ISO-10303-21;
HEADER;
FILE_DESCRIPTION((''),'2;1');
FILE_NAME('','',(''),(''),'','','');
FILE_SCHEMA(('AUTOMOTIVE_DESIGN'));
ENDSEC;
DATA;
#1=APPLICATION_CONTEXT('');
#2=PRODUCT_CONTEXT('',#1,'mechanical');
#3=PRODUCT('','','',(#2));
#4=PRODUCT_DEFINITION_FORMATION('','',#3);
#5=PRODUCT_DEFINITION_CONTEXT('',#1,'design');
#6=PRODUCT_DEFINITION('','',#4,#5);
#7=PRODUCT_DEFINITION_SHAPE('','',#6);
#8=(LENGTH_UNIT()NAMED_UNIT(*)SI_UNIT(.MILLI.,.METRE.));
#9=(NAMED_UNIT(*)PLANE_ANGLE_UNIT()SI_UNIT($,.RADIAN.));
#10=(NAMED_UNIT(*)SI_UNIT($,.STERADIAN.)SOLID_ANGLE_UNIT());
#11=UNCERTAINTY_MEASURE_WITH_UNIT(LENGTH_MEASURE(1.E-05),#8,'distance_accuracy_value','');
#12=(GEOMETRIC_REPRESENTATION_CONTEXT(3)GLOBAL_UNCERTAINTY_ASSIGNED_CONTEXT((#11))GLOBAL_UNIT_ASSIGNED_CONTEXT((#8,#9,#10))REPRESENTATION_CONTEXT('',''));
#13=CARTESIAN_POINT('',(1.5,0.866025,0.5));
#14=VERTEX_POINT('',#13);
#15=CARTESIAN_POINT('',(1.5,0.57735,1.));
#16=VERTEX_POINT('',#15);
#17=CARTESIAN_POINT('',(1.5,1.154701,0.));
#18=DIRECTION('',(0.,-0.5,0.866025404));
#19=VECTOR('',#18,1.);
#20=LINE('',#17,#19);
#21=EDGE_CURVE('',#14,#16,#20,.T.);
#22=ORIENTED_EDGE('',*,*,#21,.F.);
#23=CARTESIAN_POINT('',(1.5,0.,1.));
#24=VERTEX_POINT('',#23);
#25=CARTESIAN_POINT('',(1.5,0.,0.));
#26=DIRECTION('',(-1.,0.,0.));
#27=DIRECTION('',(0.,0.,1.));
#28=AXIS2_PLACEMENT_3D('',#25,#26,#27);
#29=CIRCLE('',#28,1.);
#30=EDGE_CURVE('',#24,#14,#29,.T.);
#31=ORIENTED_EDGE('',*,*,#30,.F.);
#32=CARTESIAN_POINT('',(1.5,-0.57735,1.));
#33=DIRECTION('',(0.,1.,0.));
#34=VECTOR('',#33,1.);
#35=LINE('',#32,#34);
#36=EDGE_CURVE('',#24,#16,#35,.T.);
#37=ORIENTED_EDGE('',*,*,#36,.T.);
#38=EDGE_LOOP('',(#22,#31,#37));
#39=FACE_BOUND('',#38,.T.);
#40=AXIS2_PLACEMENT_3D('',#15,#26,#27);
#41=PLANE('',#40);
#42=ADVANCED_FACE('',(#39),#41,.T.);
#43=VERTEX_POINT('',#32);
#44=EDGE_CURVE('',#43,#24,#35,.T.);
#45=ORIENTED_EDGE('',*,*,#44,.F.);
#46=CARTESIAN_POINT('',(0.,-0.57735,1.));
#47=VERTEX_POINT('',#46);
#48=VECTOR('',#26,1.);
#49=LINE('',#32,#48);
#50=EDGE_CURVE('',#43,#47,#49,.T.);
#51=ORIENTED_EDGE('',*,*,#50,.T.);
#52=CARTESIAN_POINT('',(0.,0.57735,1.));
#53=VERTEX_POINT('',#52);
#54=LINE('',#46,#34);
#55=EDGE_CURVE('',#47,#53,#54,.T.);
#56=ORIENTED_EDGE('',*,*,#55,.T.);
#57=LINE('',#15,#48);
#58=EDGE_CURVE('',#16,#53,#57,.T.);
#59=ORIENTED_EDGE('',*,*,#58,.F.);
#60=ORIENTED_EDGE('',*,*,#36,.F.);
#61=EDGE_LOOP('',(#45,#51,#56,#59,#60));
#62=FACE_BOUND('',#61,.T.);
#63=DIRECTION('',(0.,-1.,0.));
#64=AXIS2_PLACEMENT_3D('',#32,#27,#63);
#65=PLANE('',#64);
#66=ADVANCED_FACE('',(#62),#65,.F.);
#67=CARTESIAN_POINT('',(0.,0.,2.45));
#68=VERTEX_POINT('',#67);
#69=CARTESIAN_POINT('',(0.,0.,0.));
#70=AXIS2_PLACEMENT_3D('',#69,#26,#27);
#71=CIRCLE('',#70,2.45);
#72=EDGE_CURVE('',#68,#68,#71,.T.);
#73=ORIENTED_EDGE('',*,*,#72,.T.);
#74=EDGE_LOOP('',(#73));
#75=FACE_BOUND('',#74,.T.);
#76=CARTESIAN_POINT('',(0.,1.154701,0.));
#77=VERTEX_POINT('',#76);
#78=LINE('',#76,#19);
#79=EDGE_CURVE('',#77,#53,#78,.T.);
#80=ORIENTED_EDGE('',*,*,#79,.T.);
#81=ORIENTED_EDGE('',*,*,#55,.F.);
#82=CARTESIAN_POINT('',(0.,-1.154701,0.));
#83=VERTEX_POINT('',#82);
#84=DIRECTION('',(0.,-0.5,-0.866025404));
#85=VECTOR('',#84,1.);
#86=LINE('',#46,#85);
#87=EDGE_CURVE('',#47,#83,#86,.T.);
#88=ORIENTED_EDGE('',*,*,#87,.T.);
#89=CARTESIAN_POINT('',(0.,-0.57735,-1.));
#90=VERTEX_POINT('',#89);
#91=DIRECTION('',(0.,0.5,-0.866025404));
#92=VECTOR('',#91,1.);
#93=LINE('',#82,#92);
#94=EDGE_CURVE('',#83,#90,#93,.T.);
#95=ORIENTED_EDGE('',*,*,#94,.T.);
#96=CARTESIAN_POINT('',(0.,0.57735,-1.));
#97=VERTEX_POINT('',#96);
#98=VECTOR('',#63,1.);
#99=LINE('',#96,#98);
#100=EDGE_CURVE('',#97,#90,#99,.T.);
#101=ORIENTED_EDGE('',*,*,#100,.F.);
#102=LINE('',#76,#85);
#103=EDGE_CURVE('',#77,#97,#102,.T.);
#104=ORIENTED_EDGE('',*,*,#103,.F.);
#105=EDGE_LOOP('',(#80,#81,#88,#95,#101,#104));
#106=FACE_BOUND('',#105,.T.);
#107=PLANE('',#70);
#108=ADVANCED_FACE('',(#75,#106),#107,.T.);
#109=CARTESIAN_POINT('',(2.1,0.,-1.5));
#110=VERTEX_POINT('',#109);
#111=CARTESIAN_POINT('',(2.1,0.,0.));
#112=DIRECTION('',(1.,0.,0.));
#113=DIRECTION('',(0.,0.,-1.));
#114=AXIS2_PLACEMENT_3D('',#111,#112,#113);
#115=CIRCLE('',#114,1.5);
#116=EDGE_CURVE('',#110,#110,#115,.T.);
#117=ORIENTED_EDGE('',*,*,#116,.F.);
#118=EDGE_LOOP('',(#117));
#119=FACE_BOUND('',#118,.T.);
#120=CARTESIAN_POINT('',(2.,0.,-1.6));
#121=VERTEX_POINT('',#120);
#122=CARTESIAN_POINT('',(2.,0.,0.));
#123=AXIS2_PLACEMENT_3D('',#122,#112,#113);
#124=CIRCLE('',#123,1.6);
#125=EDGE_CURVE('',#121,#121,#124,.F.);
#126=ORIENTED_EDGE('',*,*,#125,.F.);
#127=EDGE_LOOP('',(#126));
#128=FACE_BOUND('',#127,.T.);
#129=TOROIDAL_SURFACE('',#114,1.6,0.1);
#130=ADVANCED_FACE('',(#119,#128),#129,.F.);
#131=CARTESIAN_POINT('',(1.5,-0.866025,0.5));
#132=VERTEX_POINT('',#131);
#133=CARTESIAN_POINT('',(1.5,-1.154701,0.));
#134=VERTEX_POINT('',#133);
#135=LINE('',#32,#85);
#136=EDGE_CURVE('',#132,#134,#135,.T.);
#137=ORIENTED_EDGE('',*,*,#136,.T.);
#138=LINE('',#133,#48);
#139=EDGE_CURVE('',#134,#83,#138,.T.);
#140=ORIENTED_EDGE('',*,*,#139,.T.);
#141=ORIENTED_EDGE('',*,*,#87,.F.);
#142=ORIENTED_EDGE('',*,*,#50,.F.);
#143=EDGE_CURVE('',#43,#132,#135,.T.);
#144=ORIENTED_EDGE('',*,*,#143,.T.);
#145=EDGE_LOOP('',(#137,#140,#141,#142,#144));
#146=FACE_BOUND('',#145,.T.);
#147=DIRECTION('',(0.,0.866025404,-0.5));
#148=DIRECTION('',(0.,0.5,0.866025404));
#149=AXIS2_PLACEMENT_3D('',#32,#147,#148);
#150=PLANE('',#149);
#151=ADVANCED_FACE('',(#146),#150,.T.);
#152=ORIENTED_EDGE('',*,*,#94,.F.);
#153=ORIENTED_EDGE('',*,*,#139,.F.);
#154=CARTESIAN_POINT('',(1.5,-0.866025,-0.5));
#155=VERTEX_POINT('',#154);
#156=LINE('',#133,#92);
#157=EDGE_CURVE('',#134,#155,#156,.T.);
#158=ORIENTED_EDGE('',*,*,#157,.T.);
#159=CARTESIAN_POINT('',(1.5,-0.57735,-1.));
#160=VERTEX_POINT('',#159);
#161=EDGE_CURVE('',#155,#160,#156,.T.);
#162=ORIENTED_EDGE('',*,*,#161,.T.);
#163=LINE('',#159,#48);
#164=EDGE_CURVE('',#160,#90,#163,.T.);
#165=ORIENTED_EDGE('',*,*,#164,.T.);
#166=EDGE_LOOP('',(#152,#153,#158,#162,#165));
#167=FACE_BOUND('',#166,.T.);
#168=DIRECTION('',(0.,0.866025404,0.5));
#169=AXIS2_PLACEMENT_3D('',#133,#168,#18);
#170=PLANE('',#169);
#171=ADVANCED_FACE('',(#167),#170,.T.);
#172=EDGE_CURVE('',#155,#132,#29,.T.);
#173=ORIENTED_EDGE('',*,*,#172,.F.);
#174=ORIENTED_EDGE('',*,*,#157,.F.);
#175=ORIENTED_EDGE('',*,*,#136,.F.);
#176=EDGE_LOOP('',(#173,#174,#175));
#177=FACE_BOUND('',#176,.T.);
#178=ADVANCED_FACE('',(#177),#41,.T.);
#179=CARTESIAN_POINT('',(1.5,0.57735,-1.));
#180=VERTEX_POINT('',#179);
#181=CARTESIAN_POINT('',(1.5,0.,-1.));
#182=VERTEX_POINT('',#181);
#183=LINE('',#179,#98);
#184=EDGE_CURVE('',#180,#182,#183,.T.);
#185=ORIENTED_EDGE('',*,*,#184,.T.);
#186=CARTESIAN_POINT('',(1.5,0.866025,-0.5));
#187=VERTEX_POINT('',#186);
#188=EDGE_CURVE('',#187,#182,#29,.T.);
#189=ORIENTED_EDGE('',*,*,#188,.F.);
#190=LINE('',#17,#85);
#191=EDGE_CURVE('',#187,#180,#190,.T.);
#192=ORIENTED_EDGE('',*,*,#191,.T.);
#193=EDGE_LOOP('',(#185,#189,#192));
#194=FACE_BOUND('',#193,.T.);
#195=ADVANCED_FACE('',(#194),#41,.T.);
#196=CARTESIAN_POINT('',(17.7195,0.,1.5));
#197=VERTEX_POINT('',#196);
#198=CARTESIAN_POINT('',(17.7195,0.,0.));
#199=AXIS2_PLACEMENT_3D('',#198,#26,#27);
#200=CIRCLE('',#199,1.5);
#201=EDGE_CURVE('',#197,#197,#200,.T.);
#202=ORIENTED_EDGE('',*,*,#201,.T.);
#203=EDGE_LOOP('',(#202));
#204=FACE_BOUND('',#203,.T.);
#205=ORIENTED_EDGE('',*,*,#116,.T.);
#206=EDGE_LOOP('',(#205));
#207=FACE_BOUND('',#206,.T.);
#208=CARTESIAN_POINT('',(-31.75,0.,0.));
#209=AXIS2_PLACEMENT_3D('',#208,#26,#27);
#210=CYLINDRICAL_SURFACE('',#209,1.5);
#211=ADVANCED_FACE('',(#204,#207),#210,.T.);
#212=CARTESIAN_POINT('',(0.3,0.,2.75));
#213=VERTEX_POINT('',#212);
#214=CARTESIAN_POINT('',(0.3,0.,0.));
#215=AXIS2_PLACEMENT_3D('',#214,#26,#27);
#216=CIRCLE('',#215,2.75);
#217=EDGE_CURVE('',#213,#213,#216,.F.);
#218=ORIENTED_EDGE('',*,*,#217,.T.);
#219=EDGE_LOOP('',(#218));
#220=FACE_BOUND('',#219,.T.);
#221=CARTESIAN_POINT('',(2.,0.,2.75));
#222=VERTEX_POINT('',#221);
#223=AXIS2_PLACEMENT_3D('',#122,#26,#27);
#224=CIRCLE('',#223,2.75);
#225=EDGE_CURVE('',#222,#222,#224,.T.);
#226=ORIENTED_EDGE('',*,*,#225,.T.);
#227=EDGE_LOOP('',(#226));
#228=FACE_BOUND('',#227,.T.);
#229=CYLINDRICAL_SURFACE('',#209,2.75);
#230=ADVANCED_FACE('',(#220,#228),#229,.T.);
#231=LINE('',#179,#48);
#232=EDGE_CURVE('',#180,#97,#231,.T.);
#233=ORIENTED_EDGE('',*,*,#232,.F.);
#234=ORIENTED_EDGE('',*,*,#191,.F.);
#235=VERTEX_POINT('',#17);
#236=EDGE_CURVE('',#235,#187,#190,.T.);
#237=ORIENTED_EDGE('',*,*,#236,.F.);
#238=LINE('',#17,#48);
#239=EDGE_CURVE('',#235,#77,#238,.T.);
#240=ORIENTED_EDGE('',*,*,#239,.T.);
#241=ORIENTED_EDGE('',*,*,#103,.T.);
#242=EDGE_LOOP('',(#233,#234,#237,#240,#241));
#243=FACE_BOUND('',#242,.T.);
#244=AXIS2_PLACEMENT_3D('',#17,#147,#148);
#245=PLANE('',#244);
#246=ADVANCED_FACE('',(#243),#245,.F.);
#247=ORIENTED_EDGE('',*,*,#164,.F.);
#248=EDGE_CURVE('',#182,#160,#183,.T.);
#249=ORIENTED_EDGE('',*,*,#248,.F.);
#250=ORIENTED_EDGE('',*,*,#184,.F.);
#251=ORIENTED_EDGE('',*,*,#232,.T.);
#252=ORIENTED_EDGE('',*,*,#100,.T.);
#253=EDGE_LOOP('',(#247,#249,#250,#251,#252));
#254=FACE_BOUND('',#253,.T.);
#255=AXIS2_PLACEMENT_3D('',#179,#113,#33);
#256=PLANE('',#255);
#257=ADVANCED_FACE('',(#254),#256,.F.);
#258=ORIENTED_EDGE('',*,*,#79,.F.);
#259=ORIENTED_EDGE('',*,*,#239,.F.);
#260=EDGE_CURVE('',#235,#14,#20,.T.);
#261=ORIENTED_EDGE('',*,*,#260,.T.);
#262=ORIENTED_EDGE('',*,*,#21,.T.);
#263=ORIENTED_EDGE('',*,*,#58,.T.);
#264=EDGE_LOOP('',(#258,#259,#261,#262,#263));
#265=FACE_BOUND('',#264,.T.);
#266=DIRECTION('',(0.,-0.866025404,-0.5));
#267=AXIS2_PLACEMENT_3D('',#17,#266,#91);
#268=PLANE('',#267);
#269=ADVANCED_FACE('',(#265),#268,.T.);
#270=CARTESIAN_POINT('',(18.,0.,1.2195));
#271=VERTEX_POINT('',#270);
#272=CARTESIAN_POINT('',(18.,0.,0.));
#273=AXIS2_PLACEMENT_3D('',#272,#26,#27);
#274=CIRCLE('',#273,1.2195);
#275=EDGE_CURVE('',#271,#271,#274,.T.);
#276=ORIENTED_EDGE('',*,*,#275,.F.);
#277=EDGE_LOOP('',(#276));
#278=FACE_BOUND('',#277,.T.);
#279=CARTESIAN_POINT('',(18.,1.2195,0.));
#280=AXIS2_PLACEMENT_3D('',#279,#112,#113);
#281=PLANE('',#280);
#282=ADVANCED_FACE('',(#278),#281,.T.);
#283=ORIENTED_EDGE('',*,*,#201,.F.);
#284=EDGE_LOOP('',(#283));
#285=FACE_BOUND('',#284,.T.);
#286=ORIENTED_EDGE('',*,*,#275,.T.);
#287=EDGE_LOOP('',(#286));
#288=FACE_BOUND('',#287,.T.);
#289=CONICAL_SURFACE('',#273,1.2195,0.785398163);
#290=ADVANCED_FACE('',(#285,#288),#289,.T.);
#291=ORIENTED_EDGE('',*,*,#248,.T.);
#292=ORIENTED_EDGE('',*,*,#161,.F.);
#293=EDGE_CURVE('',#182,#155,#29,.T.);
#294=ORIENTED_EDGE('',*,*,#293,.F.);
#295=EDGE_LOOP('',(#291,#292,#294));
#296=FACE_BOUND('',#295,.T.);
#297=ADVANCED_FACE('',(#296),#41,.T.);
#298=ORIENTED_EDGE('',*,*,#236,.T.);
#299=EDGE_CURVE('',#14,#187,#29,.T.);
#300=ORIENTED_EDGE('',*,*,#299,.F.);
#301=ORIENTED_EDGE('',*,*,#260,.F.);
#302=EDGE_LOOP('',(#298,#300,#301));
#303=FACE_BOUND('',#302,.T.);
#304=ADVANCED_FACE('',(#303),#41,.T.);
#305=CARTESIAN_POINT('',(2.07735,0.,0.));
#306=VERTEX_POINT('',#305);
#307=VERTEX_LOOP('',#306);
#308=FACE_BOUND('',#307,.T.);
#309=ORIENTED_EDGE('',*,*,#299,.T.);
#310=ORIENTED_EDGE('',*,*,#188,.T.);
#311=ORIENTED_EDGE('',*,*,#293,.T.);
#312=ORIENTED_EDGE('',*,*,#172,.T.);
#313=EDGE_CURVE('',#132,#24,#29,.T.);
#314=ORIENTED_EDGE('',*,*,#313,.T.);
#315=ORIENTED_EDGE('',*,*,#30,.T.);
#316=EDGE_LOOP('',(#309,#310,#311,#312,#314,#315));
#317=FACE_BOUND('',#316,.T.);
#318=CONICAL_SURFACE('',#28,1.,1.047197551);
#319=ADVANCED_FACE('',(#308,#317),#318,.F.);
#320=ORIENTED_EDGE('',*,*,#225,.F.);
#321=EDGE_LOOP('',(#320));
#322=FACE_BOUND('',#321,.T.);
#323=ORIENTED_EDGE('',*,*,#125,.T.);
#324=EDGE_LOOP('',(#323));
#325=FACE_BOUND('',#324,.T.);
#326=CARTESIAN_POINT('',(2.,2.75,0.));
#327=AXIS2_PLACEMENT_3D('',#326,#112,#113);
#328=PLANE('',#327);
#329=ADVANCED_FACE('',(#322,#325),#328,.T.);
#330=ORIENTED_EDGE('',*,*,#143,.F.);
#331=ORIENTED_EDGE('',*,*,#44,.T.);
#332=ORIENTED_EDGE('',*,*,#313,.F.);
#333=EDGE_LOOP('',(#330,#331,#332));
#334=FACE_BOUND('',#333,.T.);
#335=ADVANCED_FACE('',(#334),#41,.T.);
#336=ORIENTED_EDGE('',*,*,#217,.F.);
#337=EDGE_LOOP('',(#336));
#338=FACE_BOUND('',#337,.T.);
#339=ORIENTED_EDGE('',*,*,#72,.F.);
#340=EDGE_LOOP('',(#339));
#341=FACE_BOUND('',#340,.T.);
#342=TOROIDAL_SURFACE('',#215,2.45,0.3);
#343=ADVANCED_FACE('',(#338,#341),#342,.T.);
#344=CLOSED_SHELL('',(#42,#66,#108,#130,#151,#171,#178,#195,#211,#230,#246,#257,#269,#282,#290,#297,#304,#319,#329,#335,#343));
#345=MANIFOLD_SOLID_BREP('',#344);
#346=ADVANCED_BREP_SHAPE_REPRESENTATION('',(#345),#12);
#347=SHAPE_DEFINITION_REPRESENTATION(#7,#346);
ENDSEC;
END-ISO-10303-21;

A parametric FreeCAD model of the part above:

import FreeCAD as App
import Part
import Sketcher
Q = App.Units.Quantity


def edges_at(feature, points):
    """Names of the edges that pass closest to the given points."""
    edges = feature.Shape.Edges
    near = lambda p: min(range(len(edges)), key=lambda i: edges[i].distToShape(Part.Vertex(*p))[0])
    return sorted({f"Edge{near(p) + 1}" for p in points})

doc = App.newDocument("Part")
params = doc.addObject("Spreadsheet::Sheet", "Params")
for row, (alias, value) in enumerate([
    ("sketch1_width", "18 mm"),
    ("sketch1_width2", "2 mm"),
    ("sketch1_height", "2.75 mm"),
    ("sketch1_height2", "1.25 mm"),
    ("revolution_angle", "360 deg"),
    ("fillet_radius", "0.1 mm"),
    ("fillet2_radius", "0.3 mm"),
    ("sketch2_height", "1 mm"),
    ("sketch2_width", "1.5 mm"),
    ("groove_angle", "360 deg"),
    ("pocket1_length", "1.5 mm"),
], start=1):
    params.set(f"A{row}", alias)
    params.set(f"B{row}", "=" + value)
    params.setAlias(f"B{row}", alias)

body = doc.addObject("PartDesign::Body", "Body")

# Sketch on XY plane
sketch1 = doc.addObject("Sketcher::SketchObject", "Sketch")
body.addObject(sketch1)
sketch1.AttachmentSupport = (doc.XY_Plane, [""])
sketch1.MapMode = "FlatFace"
sketch1.addGeometry([
    Part.LineSegment(App.Vector(0, 2.75, 0), App.Vector(0, 0, 0)),  # 0
    Part.LineSegment(App.Vector(0, 0, 0), App.Vector(18, 0, 0)),  # 1
    Part.LineSegment(App.Vector(18, 0, 0), App.Vector(18, 1.2195, 0)),  # 2
    Part.LineSegment(App.Vector(18, 1.2195, 0), App.Vector(17.7195, 1.5, 0)),  # 3
    Part.LineSegment(App.Vector(17.7195, 1.5, 0), App.Vector(2, 1.5, 0)),  # 4
    Part.LineSegment(App.Vector(2, 1.5, 0), App.Vector(2, 2.75, 0)),  # 5
    Part.LineSegment(App.Vector(2, 2.75, 0), App.Vector(0, 2.75, 0)),  # 6
], False)
sketch1.addConstraint([
    Sketcher.Constraint("Coincident", 0, 2, 1, 1),
    Sketcher.Constraint("Coincident", 1, 2, 2, 1),
    Sketcher.Constraint("Coincident", 2, 2, 3, 1),
    Sketcher.Constraint("Coincident", 3, 2, 4, 1),
    Sketcher.Constraint("Coincident", 4, 2, 5, 1),
    Sketcher.Constraint("Coincident", 5, 2, 6, 1),
    Sketcher.Constraint("Coincident", 6, 2, 0, 1),
    Sketcher.Constraint("Vertical", 0),
    Sketcher.Constraint("Horizontal", 1),
    Sketcher.Constraint("Vertical", 2),
    Sketcher.Constraint("Horizontal", 4),
    Sketcher.Constraint("Vertical", 5),
    Sketcher.Constraint("Horizontal", 6),
    Sketcher.Constraint("Coincident", 0, 2, -1, 1),
    Sketcher.Constraint("DistanceX", 1, 1, 1, 2, Q("18 mm")),
    Sketcher.Constraint("DistanceX", 6, 2, 6, 1, Q("2 mm")),
    Sketcher.Constraint("Angle", 3, Q("135 deg")),
    Sketcher.Constraint("DistanceY", 0, 2, 0, 1, Q("2.75 mm")),
    Sketcher.Constraint("DistanceY", 5, 1, 5, 2, Q("1.25 mm")),
    Sketcher.Constraint("DistanceX", 4, 2, 4, 1, Q("15.7195 mm")),
])
sketch1.setExpression("Constraints[14]", "Params.sketch1_width")
sketch1.setExpression("Constraints[15]", "Params.sketch1_width2")
sketch1.setExpression("Constraints[17]", "Params.sketch1_height")
sketch1.setExpression("Constraints[18]", "Params.sketch1_height2")
revolution = doc.addObject("PartDesign::Revolution", "Revolution")
body.addObject(revolution)
revolution.Profile = sketch1
revolution.ReferenceAxis = (sketch1, ["H_Axis"])
revolution.setExpression("Angle", "Params.revolution_angle")
doc.recompute()

fillet = doc.addObject("PartDesign::Fillet", "Fillet")
body.addObject(fillet)
fillet.Base = (revolution, edges_at(revolution, [(2, 0, -1.5)]))
fillet.setExpression("Radius", "Params.fillet_radius")
doc.recompute()

fillet2 = doc.addObject("PartDesign::Fillet", "Fillet001")
body.addObject(fillet2)
fillet2.Base = (fillet, edges_at(fillet, [(0, 0, -2.75)]))
fillet2.setExpression("Radius", "Params.fillet2_radius")

# Sketch on XY plane
sketch2 = doc.addObject("Sketcher::SketchObject", "Sketch001")
body.addObject(sketch2)
sketch2.AttachmentSupport = (doc.XY_Plane, [""])
sketch2.MapMode = "FlatFace"
sketch2.addGeometry([
    Part.LineSegment(App.Vector(1.5, 1, 0), App.Vector(0, 1, 0)),
    Part.LineSegment(App.Vector(0, 1, 0), App.Vector(0, 0, 0)),
    Part.LineSegment(App.Vector(0, 0, 0), App.Vector(2.07735, 0, 0)),
    Part.LineSegment(App.Vector(2.07735, 0, 0), App.Vector(1.5, 1, 0)),
], False)
sketch2.addConstraint([
    Sketcher.Constraint("Coincident", 0, 2, 1, 1),
    Sketcher.Constraint("Coincident", 1, 2, 2, 1),
    Sketcher.Constraint("Coincident", 2, 2, 3, 1),
    Sketcher.Constraint("Coincident", 3, 2, 0, 1),
    Sketcher.Constraint("Horizontal", 0),
    Sketcher.Constraint("Vertical", 1),
    Sketcher.Constraint("Horizontal", 2),
    Sketcher.Constraint("Coincident", 1, 2, -1, 1),
    Sketcher.Constraint("DistanceY", 1, 2, 1, 1, Q("1 mm")),
    Sketcher.Constraint("Angle", 3, Q("120 deg")),
    Sketcher.Constraint("DistanceX", 0, 2, 0, 1, Q("1.5 mm")),
])
sketch2.setExpression("Constraints[8]", "Params.sketch2_height")
sketch2.setExpression("Constraints[10]", "Params.sketch2_width")
groove = doc.addObject("PartDesign::Groove", "Groove")
body.addObject(groove)
groove.Profile = sketch2
groove.ReferenceAxis = (sketch2, ["H_Axis"])
groove.setExpression("Angle", "Params.groove_angle")

# Sketch on YZ plane
sketch3 = doc.addObject("Sketcher::SketchObject", "Sketch002")
body.addObject(sketch3)
sketch3.AttachmentSupport = (doc.YZ_Plane, [""])
sketch3.MapMode = "FlatFace"
sketch3.addGeometry([
    Part.LineSegment(App.Vector(1.154701, 0, 0), App.Vector(0.57735, -1, 0)),  # 0
    Part.LineSegment(App.Vector(0.57735, -1, 0), App.Vector(-0.57735, -1, 0)),  # 1
    Part.LineSegment(App.Vector(-0.57735, -1, 0), App.Vector(-1.154701, 0, 0)),  # 2
    Part.LineSegment(App.Vector(-1.154701, 0, 0), App.Vector(-0.57735, 1, 0)),  # 3
    Part.LineSegment(App.Vector(-0.57735, 1, 0), App.Vector(0.57735, 1, 0)),  # 4
    Part.LineSegment(App.Vector(0.57735, 1, 0), App.Vector(1.154701, 0, 0)),  # 5
], False)
sketch3.addConstraint([
    Sketcher.Constraint("Coincident", 0, 2, 1, 1),
    Sketcher.Constraint("Coincident", 1, 2, 2, 1),
    Sketcher.Constraint("Coincident", 2, 2, 3, 1),
    Sketcher.Constraint("Coincident", 3, 2, 4, 1),
    Sketcher.Constraint("Coincident", 4, 2, 5, 1),
    Sketcher.Constraint("Coincident", 5, 2, 0, 1),
    Sketcher.Constraint("Horizontal", 1),
    Sketcher.Constraint("Horizontal", 4),
    Sketcher.Constraint("Symmetric", 0, 2, 3, 2, -1, 1),
    Sketcher.Constraint("Symmetric", 2, 2, 5, 2, -1, 1),
    Sketcher.Constraint("PointOnObject", 2, 2, -1),
    Sketcher.Constraint("Parallel", 2, 5),
    Sketcher.Constraint("Vertical", 1, 2, 3, 2),
    Sketcher.Constraint("Angle", 0, Q("-120 deg")),
    Sketcher.Constraint("DistanceY", 0, 2, -1, 1, Q("1 mm")),
    Sketcher.Constraint("DistanceX", 1, 2, 1, 1, Q("1.154701 mm")),
])
pocket1 = doc.addObject("PartDesign::Pocket", "Pocket")
body.addObject(pocket1)
pocket1.Profile = sketch3
pocket1.setExpression("Length", "Params.pocket1_length")
pocket1.Reversed = True

doc.recompute()
